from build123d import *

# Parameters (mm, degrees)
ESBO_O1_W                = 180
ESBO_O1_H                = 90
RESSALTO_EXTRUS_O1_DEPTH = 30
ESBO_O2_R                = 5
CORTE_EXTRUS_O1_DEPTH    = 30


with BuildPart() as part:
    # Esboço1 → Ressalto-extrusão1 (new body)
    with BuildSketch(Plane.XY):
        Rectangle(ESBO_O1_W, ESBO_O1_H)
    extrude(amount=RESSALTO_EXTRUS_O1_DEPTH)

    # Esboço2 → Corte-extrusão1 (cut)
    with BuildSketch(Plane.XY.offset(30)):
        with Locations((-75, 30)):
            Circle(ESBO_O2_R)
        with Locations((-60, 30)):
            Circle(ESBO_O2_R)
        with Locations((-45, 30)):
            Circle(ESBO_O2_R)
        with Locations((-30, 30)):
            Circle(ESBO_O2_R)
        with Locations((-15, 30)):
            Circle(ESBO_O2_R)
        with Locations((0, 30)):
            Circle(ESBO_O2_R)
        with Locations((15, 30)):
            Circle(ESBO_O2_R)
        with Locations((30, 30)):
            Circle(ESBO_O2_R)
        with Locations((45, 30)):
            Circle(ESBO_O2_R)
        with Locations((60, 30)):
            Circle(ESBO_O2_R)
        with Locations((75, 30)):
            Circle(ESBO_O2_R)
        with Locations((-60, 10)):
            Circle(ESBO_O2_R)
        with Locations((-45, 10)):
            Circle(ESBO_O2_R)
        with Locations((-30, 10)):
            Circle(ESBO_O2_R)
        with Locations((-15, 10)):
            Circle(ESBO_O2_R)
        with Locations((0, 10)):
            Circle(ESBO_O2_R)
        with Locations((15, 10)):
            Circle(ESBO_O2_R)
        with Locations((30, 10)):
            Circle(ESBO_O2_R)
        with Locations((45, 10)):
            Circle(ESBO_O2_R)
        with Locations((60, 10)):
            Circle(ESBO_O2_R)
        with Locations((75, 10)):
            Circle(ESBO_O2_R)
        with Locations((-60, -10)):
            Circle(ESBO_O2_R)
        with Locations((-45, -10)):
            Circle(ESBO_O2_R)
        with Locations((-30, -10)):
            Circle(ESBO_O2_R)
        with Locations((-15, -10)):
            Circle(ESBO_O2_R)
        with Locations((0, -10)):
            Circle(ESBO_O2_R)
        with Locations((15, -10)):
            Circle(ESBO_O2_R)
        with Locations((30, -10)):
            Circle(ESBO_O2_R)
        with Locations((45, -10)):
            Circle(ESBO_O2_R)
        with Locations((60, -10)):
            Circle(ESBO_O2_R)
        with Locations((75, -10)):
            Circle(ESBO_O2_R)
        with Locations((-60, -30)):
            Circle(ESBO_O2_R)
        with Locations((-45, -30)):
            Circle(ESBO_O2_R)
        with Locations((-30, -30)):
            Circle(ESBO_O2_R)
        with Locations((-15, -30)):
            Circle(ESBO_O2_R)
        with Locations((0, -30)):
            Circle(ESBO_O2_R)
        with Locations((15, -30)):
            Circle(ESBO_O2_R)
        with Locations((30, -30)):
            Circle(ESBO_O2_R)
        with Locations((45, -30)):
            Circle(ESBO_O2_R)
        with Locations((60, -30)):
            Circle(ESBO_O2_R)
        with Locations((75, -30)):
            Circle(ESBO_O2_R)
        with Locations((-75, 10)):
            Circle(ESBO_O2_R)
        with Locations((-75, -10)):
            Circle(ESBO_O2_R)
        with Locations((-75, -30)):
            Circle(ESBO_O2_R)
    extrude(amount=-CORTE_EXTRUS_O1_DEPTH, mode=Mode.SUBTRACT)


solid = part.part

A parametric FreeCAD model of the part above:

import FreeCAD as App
import Part
import Sketcher

V = App.Vector
Q = App.Units.Quantity

doc = App.newDocument("Part")
params = doc.addObject("Spreadsheet::Sheet", "Params")
for row, (alias, value) in enumerate([
    ("sketch1_width", "180 mm"),
    ("sketch1_height", "90 mm"),
    ("pad1_length", "30 mm"),
    ("sketch2_diameter", "10 mm"),
    ("pocket1_length", "30 mm"),
], start=1):
    params.set(f"A{row}", alias)
    params.set(f"B{row}", "=" + value)
    params.setAlias(f"B{row}", alias)

body = doc.addObject("PartDesign::Body", "Body")

# Sketch on XY plane
sketch1 = doc.addObject("Sketcher::SketchObject", "Sketch")
body.addObject(sketch1)
sketch1.AttachmentSupport = (doc.XY_Plane, [""])
sketch1.MapMode = "FlatFace"
sketch1.addGeometry([
    Part.LineSegment(V(-90, 45, 0), V(-90, -45, 0)),
    Part.LineSegment(V(-90, -45, 0), V(90, -45, 0)),
    Part.LineSegment(V(90, -45, 0), V(90, 45, 0)),
    Part.LineSegment(V(90, 45, 0), V(-90, 45, 0)),
], False)
sketch1.addConstraint([
    Sketcher.Constraint("Coincident", 0, 2, 1, 1),
    Sketcher.Constraint("Coincident", 1, 2, 2, 1),
    Sketcher.Constraint("Coincident", 2, 2, 3, 1),
    Sketcher.Constraint("Coincident", 3, 2, 0, 1),
    Sketcher.Constraint("Vertical", 0),
    Sketcher.Constraint("Horizontal", 1),
    Sketcher.Constraint("Vertical", 2),
    Sketcher.Constraint("Horizontal", 3),
    Sketcher.Constraint("Symmetric", 0, 2, 2, 2, -1, 1),
    Sketcher.Constraint("DistanceX", 1, 1, 1, 2, Q("180 mm")),
    Sketcher.Constraint("DistanceY", 0, 2, 0, 1, Q("90 mm")),
])
sketch1.setExpression("Constraints[9]", "Params.sketch1_width")
sketch1.setExpression("Constraints[10]", "Params.sketch1_height")
pad1 = doc.addObject("PartDesign::Pad", "Pad")
body.addObject(pad1)
pad1.Profile = sketch1
pad1.setExpression("Length", "Params.pad1_length")

# Sketch on XY plane
sketch2 = doc.addObject("Sketcher::SketchObject", "Sketch001")
body.addObject(sketch2)
sketch2.AttachmentSupport = (doc.XY_Plane, [""])
sketch2.MapMode = "FlatFace"
sketch2.AttachmentOffset = App.Placement(V(0, 0, 30), App.Rotation())
sketch2.addGeometry([
    Part.Circle(V(-75, 30, 0), V(0, 0, 1), 5),  # 0
    Part.Circle(V(-60, 30, 0), V(0, 0, 1), 5),  # 1
    Part.Circle(V(-45, 30, 0), V(0, 0, 1), 5),  # 2
    Part.Circle(V(-30, 30, 0), V(0, 0, 1), 5),  # 3
    Part.Circle(V(-15, 30, 0), V(0, 0, 1), 5),  # 4
    Part.Circle(V(0, 30, 0), V(0, 0, 1), 5),  # 5
    Part.Circle(V(15, 30, 0), V(0, 0, 1), 5),  # 6
    Part.Circle(V(30, 30, 0), V(0, 0, 1), 5),  # 7
    Part.Circle(V(45, 30, 0), V(0, 0, 1), 5),  # 8
    Part.Circle(V(60, 30, 0), V(0, 0, 1), 5),  # 9
    Part.Circle(V(75, 30, 0), V(0, 0, 1), 5),  # 10
    Part.Circle(V(-60, 10, 0), V(0, 0, 1), 5),  # 11
    Part.Circle(V(-45, 10, 0), V(0, 0, 1), 5),  # 12
    Part.Circle(V(-30, 10, 0), V(0, 0, 1), 5),  # 13
    Part.Circle(V(-15, 10, 0), V(0, 0, 1), 5),  # 14
    Part.Circle(V(0, 10, 0), V(0, 0, 1), 5),  # 15
    Part.Circle(V(15, 10, 0), V(0, 0, 1), 5),  # 16
    Part.Circle(V(30, 10, 0), V(0, 0, 1), 5),  # 17
    Part.Circle(V(45, 10, 0), V(0, 0, 1), 5),  # 18
    Part.Circle(V(60, 10, 0), V(0, 0, 1), 5),  # 19
    Part.Circle(V(75, 10, 0), V(0, 0, 1), 5),  # 20
    Part.Circle(V(-60, -10, 0), V(0, 0, 1), 5),  # 21
    Part.Circle(V(-45, -10, 0), V(0, 0, 1), 5),  # 22
    Part.Circle(V(-30, -10, 0), V(0, 0, 1), 5),  # 23
    Part.Circle(V(-15, -10, 0), V(0, 0, 1), 5),  # 24
    Part.Circle(V(0, -10, 0), V(0, 0, 1), 5),  # 25
    Part.Circle(V(15, -10, 0), V(0, 0, 1), 5),  # 26
    Part.Circle(V(30, -10, 0), V(0, 0, 1), 5),  # 27
    Part.Circle(V(45, -10, 0), V(0, 0, 1), 5),  # 28
    Part.Circle(V(60, -10, 0), V(0, 0, 1), 5),  # 29
    Part.Circle(V(75, -10, 0), V(0, 0, 1), 5),  # 30
    Part.Circle(V(-60, -30, 0), V(0, 0, 1), 5),  # 31
    Part.Circle(V(-45, -30, 0), V(0, 0, 1), 5),  # 32
    Part.Circle(V(-30, -30, 0), V(0, 0, 1), 5),  # 33
    Part.Circle(V(-15, -30, 0), V(0, 0, 1), 5),  # 34
    Part.Circle(V(0, -30, 0), V(0, 0, 1), 5),  # 35
    Part.Circle(V(15, -30, 0), V(0, 0, 1), 5),  # 36
    Part.Circle(V(30, -30, 0), V(0, 0, 1), 5),  # 37
    Part.Circle(V(45, -30, 0), V(0, 0, 1), 5),  # 38
    Part.Circle(V(60, -30, 0), V(0, 0, 1), 5),  # 39
    Part.Circle(V(75, -30, 0), V(0, 0, 1), 5),  # 40
    Part.Circle(V(-75, 10, 0), V(0, 0, 1), 5),  # 41
    Part.Circle(V(-75, -10, 0), V(0, 0, 1), 5),  # 42
    Part.Circle(V(-75, -30, 0), V(0, 0, 1), 5),  # 43
], False)
sketch2.addConstraint([
    Sketcher.Constraint("Equal", 0, 1),
    Sketcher.Constraint("Equal", 1, 2),
    Sketcher.Constraint("Equal", 2, 3),
    Sketcher.Constraint("Equal", 3, 4),
    Sketcher.Constraint("Equal", 4, 5),
    Sketcher.Constraint("Equal", 5, 6),
    Sketcher.Constraint("Equal", 6, 7),
    Sketcher.Constraint("Equal", 7, 8),
    Sketcher.Constraint("Equal", 8, 9),
    Sketcher.Constraint("Equal", 9, 10),
    Sketcher.Constraint("Equal", 10, 11),
    Sketcher.Constraint("Equal", 11, 12),
    Sketcher.Constraint("Equal", 12, 13),
    Sketcher.Constraint("Equal", 13, 14),
    Sketcher.Constraint("Equal", 14, 15),
    Sketcher.Constraint("Equal", 15, 16),
    Sketcher.Constraint("Equal", 16, 17),
    Sketcher.Constraint("Equal", 17, 18),
    Sketcher.Constraint("Equal", 18, 19),
    Sketcher.Constraint("Equal", 19, 20),
    Sketcher.Constraint("Equal", 20, 21),
    Sketcher.Constraint("Equal", 21, 22),
    Sketcher.Constraint("Equal", 22, 23),
    Sketcher.Constraint("Equal", 23, 24),
    Sketcher.Constraint("Equal", 24, 25),
    Sketcher.Constraint("Equal", 25, 26),
    Sketcher.Constraint("Equal", 26, 27),
    Sketcher.Constraint("Equal", 27, 28),
    Sketcher.Constraint("Equal", 28, 29),
    Sketcher.Constraint("Equal", 29, 30),
    Sketcher.Constraint("Equal", 30, 31),
    Sketcher.Constraint("Equal", 31, 32),
    Sketcher.Constraint("Equal", 32, 33),
    Sketcher.Constraint("Equal", 33, 34),
    Sketcher.Constraint("Equal", 34, 35),
    Sketcher.Constraint("Equal", 35, 36),
    Sketcher.Constraint("Equal", 36, 37),
    Sketcher.Constraint("Equal", 37, 38),
    Sketcher.Constraint("Equal", 38, 39),
    Sketcher.Constraint("Equal", 39, 40),
    Sketcher.Constraint("Equal", 40, 41),
    Sketcher.Constraint("Equal", 41, 42),
    Sketcher.Constraint("Equal", 42, 43),
    Sketcher.Constraint("Symmetric", 19, 3, 21, 3, -1, 1),
    Sketcher.Constraint("Symmetric", 18, 3, 22, 3, -1, 1),
    Sketcher.Constraint("Symmetric", 17, 3, 23, 3, -1, 1),
    Sketcher.Constraint("Symmetric", 16, 3, 24, 3, -1, 1),
    Sketcher.Constraint("Symmetric", 15, 3, 25, 3, -1, 1),
    Sketcher.Constraint("Symmetric", 14, 3, 26, 3, -1, 1),
    Sketcher.Constraint("Symmetric", 13, 3, 27, 3, -1, 1),
    Sketcher.Constraint("Symmetric", 12, 3, 28, 3, -1, 1),
    Sketcher.Constraint("Symmetric", 11, 3, 29, 3, -1, 1),
    Sketcher.Constraint("Symmetric", 9, 3, 31, 3, -1, 1),
    Sketcher.Constraint("Symmetric", 8, 3, 32, 3, -1, 1),
    Sketcher.Constraint("Symmetric", 7, 3, 33, 3, -1, 1),
    Sketcher.Constraint("Symmetric", 6, 3, 34, 3, -1, 1),
    Sketcher.Constraint("Symmetric", 5, 3, 35, 3, -1, 1),
    Sketcher.Constraint("Symmetric", 4, 3, 36, 3, -1, 1),
    Sketcher.Constraint("Symmetric", 3, 3, 37, 3, -1, 1),
    Sketcher.Constraint("Symmetric", 2, 3, 38, 3, -1, 1),
    Sketcher.Constraint("Symmetric", 1, 3, 39, 3, -1, 1),
    Sketcher.Constraint("Symmetric", 0, 3, 40, 3, -1, 1),
    Sketcher.Constraint("Symmetric", 30, 3, 41, 3, -1, 1),
    Sketcher.Constraint("Symmetric", 20, 3, 42, 3, -1, 1),
    Sketcher.Constraint("Symmetric", 10, 3, 43, 3, -1, 1),
    Sketcher.Constraint("Symmetric", 4, 3, 6, 3, -2),
    Sketcher.Constraint("Symmetric", 3, 3, 7, 3, -2),
    Sketcher.Constraint("Symmetric", 2, 3, 8, 3, -2),
    Sketcher.Constraint("Symmetric", 1, 3, 9, 3, -2),
    Sketcher.Constraint("Symmetric", 0, 3, 10, 3, -2),
    Sketcher.Constraint("Symmetric", 14, 3, 16, 3, -2),
    Sketcher.Constraint("Symmetric", 13, 3, 17, 3, -2),
    Sketcher.Constraint("Symmetric", 12, 3, 18, 3, -2),
    Sketcher.Constraint("Symmetric", 11, 3, 19, 3, -2),
    Sketcher.Constraint("Symmetric", 20, 3, 41, 3, -2),
    Sketcher.Constraint("PointOnObject", 5, 3, -2),
    Sketcher.Constraint("PointOnObject", 15, 3, -2),
    Sketcher.Constraint("Horizontal", 0, 3, 1, 3),
    Sketcher.Constraint("Horizontal", 1, 3, 2, 3),
    Sketcher.Constraint("Horizontal", 2, 3, 3, 3),
    Sketcher.Constraint("Horizontal", 3, 3, 4, 3),
    Sketcher.Constraint("Horizontal", 4, 3, 5, 3),
    Sketcher.Constraint("Horizontal", 11, 3, 12, 3),
    Sketcher.Constraint("Horizontal", 12, 3, 13, 3),
    Sketcher.Constraint("Horizontal", 13, 3, 14, 3),
    Sketcher.Constraint("Horizontal", 14, 3, 15, 3),
    Sketcher.Constraint("Horizontal", 19, 3, 20, 3),
    Sketcher.Constraint("Vertical", 1, 3, 11, 3),
    Sketcher.Constraint("Vertical", 2, 3, 12, 3),
    Sketcher.Constraint("Vertical", 3, 3, 13, 3),
    Sketcher.Constraint("Vertical", 4, 3, 14, 3),
    Sketcher.Constraint("Vertical", 10, 3, 20, 3),
    Sketcher.Constraint("Diameter", 0, Q("10 mm")),
    Sketcher.Constraint("DistanceX", 0, 3, -1, 1, Q("75 mm")),
    Sketcher.Constraint("DistanceY", -1, 1, 0, 3, Q("30 mm")),
    Sketcher.Constraint("DistanceX", 1, 3, -1, 1, Q("60 mm")),
    Sketcher.Constraint("DistanceX", 2, 3, -1, 1, Q("45 mm")),
    Sketcher.Constraint("DistanceX", 3, 3, -1, 1, Q("30 mm")),
    Sketcher.Constraint("DistanceX", 4, 3, -1, 1, Q("15 mm")),
    Sketcher.Constraint("DistanceY", -1, 1, 11, 3, Q("10 mm")),
])
sketch2.setExpression("Constraints[92]", "Params.sketch2_diameter")
pocket1 = doc.addObject("PartDesign::Pocket", "Pocket")
body.addObject(pocket1)
pocket1.Profile = sketch2
pocket1.setExpression("Length", "Params.pocket1_length")

doc.recompute()
